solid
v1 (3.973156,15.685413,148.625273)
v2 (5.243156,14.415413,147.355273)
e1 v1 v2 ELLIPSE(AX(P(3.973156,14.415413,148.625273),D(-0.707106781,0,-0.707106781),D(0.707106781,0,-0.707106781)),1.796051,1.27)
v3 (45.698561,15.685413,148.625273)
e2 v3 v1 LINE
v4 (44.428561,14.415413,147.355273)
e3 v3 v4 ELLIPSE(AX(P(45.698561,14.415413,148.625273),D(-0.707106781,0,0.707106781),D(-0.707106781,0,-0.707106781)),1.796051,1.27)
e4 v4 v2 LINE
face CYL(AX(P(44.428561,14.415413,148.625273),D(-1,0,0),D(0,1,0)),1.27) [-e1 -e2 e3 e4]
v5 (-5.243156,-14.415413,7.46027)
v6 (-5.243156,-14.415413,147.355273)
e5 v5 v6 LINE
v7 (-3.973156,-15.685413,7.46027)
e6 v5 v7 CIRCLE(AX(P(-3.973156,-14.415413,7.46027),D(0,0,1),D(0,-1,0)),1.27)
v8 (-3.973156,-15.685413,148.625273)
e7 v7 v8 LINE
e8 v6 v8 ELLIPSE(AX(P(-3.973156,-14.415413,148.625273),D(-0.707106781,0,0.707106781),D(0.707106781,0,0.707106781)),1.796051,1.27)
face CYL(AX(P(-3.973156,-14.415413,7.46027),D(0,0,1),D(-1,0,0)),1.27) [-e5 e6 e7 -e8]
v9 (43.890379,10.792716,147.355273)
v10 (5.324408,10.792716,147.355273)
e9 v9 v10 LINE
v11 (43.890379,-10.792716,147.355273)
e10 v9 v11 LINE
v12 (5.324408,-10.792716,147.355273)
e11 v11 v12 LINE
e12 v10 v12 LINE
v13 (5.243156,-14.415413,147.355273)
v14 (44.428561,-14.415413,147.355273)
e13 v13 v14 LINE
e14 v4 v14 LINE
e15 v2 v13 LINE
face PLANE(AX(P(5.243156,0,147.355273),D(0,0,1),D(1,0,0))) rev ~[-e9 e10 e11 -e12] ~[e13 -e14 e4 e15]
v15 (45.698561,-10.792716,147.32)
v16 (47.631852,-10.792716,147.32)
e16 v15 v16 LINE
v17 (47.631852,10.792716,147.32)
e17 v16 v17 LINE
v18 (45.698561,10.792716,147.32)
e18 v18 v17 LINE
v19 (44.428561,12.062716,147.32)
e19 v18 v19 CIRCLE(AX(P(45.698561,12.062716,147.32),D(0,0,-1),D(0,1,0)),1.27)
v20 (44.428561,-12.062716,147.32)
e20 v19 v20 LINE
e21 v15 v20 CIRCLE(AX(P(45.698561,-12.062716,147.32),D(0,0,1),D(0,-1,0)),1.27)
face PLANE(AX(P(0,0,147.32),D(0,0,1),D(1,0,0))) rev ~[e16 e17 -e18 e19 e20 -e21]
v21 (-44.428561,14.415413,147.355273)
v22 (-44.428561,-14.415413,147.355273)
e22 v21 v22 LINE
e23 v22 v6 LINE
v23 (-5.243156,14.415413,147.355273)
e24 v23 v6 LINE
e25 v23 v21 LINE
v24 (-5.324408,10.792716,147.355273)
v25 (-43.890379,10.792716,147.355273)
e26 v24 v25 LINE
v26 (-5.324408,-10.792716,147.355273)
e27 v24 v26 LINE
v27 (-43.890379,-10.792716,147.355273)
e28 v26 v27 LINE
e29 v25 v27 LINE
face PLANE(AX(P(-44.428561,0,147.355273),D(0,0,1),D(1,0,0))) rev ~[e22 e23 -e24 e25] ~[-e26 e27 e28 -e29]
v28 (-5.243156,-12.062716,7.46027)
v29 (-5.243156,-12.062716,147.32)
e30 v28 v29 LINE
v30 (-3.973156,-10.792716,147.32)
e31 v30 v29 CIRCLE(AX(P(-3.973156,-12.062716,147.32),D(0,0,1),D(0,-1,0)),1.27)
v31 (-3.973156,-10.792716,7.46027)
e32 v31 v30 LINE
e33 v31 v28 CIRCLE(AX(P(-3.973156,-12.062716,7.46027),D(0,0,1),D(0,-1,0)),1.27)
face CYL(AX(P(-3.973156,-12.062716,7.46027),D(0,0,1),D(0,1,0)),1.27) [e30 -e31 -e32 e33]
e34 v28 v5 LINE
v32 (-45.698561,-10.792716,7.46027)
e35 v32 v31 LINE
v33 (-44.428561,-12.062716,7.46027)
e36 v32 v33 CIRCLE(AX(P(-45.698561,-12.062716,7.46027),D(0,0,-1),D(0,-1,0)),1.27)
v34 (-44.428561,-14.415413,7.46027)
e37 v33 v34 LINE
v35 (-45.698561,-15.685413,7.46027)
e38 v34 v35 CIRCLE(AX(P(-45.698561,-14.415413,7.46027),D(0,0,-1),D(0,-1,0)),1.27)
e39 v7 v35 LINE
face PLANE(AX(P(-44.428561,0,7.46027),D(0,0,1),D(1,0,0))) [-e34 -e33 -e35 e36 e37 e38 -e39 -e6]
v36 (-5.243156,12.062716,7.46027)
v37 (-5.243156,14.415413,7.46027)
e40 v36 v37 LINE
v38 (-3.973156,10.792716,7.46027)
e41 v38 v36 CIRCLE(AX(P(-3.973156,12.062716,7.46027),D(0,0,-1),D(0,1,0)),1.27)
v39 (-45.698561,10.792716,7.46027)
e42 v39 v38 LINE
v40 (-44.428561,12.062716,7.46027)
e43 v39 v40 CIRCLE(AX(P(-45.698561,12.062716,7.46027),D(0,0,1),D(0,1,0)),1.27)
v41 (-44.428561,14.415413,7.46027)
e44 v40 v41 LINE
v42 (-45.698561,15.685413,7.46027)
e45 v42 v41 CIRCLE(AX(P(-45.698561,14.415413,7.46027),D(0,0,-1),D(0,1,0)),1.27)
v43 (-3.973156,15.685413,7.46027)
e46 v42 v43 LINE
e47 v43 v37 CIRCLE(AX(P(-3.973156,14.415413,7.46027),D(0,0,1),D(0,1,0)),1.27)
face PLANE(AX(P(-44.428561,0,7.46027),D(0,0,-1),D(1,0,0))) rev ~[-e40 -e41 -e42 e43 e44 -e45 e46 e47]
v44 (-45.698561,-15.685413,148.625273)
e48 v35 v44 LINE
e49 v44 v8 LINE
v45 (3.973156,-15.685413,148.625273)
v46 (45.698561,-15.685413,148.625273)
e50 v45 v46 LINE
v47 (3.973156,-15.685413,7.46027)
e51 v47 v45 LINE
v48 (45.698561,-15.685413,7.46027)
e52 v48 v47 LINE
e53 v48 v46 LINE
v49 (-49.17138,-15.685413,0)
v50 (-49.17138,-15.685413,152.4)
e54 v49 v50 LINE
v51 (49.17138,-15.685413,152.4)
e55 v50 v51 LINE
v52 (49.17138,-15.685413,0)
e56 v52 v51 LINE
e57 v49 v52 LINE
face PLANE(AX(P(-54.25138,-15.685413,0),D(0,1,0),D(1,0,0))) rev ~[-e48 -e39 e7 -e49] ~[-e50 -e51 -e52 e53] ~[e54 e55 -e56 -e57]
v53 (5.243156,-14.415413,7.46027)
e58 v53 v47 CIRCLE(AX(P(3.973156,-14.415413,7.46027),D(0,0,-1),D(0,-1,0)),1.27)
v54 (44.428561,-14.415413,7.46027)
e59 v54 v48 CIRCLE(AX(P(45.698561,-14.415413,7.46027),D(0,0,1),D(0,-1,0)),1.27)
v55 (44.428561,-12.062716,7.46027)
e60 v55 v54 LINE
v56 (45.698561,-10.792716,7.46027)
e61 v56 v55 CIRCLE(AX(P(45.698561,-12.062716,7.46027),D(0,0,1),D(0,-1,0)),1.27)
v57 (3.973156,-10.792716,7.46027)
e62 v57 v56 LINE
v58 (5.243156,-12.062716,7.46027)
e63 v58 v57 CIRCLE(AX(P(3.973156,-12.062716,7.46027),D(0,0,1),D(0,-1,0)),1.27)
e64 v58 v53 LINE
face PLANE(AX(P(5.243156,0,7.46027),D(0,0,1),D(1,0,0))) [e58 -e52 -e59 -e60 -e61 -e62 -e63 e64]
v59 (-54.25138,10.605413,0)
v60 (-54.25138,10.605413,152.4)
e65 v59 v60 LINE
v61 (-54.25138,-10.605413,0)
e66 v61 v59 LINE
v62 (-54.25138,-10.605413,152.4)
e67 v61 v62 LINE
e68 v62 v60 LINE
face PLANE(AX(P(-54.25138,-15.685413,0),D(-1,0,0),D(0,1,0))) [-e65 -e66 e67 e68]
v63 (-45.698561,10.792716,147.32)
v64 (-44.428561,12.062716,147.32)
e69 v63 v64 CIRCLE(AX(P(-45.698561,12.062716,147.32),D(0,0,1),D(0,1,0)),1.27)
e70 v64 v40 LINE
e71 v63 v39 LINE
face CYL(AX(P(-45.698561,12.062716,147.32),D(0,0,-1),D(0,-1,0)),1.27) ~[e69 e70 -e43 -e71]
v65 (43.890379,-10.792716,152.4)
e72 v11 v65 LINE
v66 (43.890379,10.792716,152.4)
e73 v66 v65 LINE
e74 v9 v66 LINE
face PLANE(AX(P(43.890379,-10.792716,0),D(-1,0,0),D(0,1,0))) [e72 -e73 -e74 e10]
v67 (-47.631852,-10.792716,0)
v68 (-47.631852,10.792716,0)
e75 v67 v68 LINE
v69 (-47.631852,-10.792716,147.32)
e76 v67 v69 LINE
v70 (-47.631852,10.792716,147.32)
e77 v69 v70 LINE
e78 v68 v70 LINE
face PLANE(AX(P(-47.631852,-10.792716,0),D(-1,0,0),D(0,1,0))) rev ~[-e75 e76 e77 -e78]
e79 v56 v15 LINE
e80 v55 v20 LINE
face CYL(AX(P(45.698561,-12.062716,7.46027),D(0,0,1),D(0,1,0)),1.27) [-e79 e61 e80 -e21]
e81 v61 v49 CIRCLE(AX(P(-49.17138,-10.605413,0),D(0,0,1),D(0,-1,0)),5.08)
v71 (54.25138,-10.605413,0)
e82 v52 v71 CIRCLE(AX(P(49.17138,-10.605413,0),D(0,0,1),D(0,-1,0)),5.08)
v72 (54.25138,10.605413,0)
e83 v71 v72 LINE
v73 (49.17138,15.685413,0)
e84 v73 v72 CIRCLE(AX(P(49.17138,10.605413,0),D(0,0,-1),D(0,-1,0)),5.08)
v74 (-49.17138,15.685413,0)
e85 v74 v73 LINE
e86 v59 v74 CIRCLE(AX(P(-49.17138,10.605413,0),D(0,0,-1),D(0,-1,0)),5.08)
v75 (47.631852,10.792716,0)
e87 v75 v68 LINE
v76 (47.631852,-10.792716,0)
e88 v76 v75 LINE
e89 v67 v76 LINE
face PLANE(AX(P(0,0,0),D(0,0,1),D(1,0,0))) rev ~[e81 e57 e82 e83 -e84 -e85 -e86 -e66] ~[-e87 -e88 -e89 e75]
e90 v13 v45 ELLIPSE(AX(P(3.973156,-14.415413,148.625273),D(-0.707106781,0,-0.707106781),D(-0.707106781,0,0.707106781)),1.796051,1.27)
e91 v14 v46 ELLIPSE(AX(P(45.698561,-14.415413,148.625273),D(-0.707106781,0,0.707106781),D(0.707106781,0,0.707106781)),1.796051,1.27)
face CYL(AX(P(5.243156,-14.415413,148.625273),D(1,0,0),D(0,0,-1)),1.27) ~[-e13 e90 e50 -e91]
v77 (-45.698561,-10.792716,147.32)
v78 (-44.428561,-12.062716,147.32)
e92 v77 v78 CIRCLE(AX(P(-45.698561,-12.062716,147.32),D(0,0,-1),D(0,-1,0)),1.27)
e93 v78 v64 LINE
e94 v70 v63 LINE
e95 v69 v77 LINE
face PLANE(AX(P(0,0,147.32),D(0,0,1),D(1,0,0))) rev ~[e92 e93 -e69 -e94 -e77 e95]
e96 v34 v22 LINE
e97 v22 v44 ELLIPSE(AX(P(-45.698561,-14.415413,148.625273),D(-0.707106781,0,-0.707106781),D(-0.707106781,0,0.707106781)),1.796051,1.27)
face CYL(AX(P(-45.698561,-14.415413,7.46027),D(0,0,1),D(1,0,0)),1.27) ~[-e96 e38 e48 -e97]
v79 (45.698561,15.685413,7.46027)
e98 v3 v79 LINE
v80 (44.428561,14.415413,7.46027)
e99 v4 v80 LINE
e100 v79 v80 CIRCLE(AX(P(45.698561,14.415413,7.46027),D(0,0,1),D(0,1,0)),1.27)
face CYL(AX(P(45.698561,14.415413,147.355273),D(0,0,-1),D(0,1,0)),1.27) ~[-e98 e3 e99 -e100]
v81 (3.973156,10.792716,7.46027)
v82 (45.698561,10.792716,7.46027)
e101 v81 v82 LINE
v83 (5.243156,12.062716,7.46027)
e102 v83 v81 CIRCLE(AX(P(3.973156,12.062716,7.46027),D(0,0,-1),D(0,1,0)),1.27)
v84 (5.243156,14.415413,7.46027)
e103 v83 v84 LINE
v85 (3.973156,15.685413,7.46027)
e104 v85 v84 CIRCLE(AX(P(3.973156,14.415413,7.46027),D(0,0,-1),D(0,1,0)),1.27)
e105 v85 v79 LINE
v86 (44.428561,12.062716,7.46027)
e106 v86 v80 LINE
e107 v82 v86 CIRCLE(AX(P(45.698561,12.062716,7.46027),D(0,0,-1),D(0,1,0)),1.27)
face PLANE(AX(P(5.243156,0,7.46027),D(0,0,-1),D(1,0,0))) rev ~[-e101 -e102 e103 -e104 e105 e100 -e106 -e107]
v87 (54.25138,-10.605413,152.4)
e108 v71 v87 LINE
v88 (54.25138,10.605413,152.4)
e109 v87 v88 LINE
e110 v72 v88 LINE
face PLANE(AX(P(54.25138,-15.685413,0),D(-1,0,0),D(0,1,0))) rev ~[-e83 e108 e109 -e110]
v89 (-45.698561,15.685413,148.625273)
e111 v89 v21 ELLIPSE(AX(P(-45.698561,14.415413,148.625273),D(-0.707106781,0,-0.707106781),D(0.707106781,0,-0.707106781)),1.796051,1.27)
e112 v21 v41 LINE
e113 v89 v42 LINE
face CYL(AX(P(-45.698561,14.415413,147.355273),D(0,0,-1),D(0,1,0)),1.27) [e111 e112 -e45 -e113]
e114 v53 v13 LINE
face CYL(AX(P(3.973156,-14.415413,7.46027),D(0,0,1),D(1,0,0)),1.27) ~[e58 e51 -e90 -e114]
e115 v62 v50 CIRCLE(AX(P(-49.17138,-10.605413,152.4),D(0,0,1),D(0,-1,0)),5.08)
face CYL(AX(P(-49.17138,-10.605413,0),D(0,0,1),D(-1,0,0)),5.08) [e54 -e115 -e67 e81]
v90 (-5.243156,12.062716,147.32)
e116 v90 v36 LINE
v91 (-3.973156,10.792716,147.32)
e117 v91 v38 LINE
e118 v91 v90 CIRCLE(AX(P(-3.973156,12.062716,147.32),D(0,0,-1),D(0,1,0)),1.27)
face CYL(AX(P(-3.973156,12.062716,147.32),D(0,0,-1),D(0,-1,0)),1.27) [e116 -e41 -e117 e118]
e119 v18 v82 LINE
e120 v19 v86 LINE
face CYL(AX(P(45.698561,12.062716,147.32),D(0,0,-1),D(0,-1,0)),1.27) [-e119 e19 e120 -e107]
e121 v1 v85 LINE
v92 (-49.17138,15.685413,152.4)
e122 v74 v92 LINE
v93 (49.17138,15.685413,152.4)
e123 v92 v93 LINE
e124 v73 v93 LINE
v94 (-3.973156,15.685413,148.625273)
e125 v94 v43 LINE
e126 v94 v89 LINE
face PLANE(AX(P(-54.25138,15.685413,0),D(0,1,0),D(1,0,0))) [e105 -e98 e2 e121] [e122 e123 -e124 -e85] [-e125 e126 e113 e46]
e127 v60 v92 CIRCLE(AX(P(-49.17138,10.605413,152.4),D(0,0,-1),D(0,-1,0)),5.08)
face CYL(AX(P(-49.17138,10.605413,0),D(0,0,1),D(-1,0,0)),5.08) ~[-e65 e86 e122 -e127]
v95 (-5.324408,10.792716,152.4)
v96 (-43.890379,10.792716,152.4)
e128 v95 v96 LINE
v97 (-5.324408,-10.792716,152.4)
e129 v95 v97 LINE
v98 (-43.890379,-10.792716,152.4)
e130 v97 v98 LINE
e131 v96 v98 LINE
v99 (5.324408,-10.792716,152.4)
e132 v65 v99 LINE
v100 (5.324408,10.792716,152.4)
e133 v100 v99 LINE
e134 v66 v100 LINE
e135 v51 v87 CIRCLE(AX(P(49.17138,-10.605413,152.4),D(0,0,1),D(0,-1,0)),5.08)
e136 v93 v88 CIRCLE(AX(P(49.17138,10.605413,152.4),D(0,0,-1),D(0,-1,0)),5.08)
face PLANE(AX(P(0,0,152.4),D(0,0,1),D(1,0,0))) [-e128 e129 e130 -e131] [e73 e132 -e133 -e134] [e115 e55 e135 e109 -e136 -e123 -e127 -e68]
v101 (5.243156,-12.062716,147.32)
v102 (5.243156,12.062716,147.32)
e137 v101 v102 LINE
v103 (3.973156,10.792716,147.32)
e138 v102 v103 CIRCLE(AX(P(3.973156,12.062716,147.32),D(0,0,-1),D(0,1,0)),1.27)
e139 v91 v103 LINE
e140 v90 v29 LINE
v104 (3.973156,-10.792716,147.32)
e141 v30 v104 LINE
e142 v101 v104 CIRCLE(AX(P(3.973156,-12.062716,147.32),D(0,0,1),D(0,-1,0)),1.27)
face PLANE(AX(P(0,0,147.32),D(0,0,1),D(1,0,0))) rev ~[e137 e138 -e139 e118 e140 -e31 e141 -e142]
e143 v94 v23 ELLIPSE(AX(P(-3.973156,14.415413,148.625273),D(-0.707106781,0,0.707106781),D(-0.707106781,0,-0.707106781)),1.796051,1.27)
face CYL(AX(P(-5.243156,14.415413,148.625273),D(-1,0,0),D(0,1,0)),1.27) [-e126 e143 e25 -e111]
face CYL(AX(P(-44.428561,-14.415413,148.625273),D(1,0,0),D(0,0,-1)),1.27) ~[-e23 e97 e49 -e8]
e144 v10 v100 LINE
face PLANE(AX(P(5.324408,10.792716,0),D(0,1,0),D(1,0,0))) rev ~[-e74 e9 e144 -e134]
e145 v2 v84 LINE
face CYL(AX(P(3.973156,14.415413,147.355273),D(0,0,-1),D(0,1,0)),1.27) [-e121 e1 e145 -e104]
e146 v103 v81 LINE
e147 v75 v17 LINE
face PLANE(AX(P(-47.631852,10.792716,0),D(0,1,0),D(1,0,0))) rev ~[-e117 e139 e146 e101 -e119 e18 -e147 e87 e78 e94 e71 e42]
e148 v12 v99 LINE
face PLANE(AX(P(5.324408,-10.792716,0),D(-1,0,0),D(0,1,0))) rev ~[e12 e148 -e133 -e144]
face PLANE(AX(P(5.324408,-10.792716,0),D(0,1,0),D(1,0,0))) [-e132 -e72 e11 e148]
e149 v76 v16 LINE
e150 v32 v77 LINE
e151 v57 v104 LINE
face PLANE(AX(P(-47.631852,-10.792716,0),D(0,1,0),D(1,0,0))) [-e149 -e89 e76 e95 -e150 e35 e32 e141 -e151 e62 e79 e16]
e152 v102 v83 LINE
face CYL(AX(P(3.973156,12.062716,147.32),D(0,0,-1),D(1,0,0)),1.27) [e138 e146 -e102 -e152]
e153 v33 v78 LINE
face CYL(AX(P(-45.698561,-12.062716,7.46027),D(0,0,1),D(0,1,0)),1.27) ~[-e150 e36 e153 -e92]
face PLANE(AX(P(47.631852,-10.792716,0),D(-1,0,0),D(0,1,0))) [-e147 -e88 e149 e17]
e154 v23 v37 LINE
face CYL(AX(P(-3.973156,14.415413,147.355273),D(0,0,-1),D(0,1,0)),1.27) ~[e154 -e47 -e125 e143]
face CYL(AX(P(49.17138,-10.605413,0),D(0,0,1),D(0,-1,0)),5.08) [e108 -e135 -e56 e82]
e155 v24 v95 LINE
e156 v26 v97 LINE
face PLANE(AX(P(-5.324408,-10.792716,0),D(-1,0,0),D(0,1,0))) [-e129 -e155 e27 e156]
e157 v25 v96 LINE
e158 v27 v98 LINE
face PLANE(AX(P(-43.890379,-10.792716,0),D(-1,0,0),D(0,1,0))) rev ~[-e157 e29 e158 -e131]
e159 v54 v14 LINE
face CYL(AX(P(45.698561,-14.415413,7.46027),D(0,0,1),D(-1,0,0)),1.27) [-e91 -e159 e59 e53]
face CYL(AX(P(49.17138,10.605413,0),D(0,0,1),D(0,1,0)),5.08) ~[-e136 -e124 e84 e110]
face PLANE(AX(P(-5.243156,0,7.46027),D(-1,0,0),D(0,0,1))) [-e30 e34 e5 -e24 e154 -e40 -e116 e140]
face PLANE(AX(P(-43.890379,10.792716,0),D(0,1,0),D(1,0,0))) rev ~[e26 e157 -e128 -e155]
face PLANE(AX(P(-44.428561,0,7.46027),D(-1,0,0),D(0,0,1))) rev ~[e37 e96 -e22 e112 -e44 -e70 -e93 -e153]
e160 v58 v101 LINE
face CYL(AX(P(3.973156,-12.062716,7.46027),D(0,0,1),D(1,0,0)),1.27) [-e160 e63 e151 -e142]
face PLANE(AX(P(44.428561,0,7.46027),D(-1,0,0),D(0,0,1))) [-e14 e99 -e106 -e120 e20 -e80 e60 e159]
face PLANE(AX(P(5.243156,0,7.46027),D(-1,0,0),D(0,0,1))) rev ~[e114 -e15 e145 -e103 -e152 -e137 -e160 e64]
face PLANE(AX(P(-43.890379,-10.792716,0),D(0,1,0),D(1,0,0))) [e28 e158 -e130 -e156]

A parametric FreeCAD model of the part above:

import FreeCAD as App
import Part
import Sketcher

V = App.Vector
Q = App.Units.Quantity


def edges_at(feature, points):
    """Names of the edges that pass closest to the given points."""
    edges = feature.Shape.Edges
    near = lambda p: min(range(len(edges)), key=lambda i: edges[i].distToShape(Part.Vertex(*p))[0])
    return sorted({f"Edge{near(p) + 1}" for p in points})

doc = App.newDocument("Part")
body = doc.addObject("PartDesign::Body", "Body")

# Sketch on XY plane
sketch1 = doc.addObject("Sketcher::SketchObject", "Sketch")
body.addObject(sketch1)
sketch1.AttachmentSupport = (doc.XY_Plane, [""])
sketch1.MapMode = "FlatFace"
sketch1.addGeometry([
    Part.LineSegment(V(-54, 16, 0), V(-54, -16, 0)),
    Part.LineSegment(V(-54, -16, 0), V(54, -16, 0)),
    Part.LineSegment(V(54, -16, 0), V(54, 16, 0)),
    Part.LineSegment(V(54, 16, 0), V(-54, 16, 0)),
], False)
sketch1.addConstraint([
    Sketcher.Constraint("Coincident", 0, 2, 1, 1),
    Sketcher.Constraint("Coincident", 1, 2, 2, 1),
    Sketcher.Constraint("Coincident", 2, 2, 3, 1),
    Sketcher.Constraint("Coincident", 3, 2, 0, 1),
    Sketcher.Constraint("Vertical", 0),
    Sketcher.Constraint("Horizontal", 1),
    Sketcher.Constraint("Vertical", 2),
    Sketcher.Constraint("Horizontal", 3),
    Sketcher.Constraint("Symmetric", 0, 2, 2, 2, -1, 1),
    Sketcher.Constraint("DistanceX", 1, 1, 1, 2, 108.502761),
    Sketcher.Constraint("DistanceY", 0, 2, 0, 1, 31.370826),
])
pad1 = doc.addObject("PartDesign::Pad", "Pad")
body.addObject(pad1)
pad1.Profile = sketch1
pad1.Length = Q("6 in")

# Sketch on XY plane
sketch2 = doc.addObject("Sketcher::SketchObject", "Sketch001")
body.addObject(sketch2)
sketch2.AttachmentSupport = (doc.XY_Plane, [""])
sketch2.MapMode = "FlatFace"
sketch2.addGeometry([
    Part.LineSegment(V(-48, 11, 0), V(-48, -11, 0)),
    Part.LineSegment(V(-48, -11, 0), V(48, -11, 0)),
    Part.LineSegment(V(48, -11, 0), V(48, 11, 0)),
    Part.LineSegment(V(48, 11, 0), V(-48, 11, 0)),
], False)
sketch2.addConstraint([
    Sketcher.Constraint("Coincident", 0, 2, 1, 1),
    Sketcher.Constraint("Coincident", 1, 2, 2, 1),
    Sketcher.Constraint("Coincident", 2, 2, 3, 1),
    Sketcher.Constraint("Coincident", 3, 2, 0, 1),
    Sketcher.Constraint("Vertical", 0),
    Sketcher.Constraint("Horizontal", 1),
    Sketcher.Constraint("Vertical", 2),
    Sketcher.Constraint("Horizontal", 3),
    Sketcher.Constraint("Symmetric", 0, 2, 2, 2, -1, 1),
    Sketcher.Constraint("DistanceX", 1, 1, 1, 2, 95.263705),
    Sketcher.Constraint("DistanceY", 0, 2, 0, 1, 21.585433),
])
pocket1 = doc.addObject("PartDesign::Pocket", "Pocket")
body.addObject(pocket1)
pocket1.Profile = sketch2
pocket1.Length = Q("5.8 in")
pocket1.Reversed = True
doc.recompute()

fillet = doc.addObject("PartDesign::Fillet", "Fillet")
body.addObject(fillet)
fillet.Base = (pocket1, edges_at(pocket1, [
    (-54.251, 15.685, 76.2),
    (-54.251, -15.685, 76.2),
    (54.251, -15.685, 76.2),
    (54.251, 15.685, 76.2),
]))
fillet.Radius = Q("0.2 in")

# Sketch on XZ plane
sketch3 = doc.addObject("Sketcher::SketchObject", "Sketch002")
body.addObject(sketch3)
sketch3.AttachmentSupport = (doc.XZ_Plane, [""])
sketch3.MapMode = "FlatFace"
sketch3.addGeometry([
    Part.LineSegment(V(5, 147, 0), V(5, 7, 0)),  # 0
    Part.LineSegment(V(5, 7, 0), V(44, 7, 0)),  # 1
    Part.LineSegment(V(44, 7, 0), V(44, 147, 0)),  # 2
    Part.LineSegment(V(44, 147, 0), V(5, 147, 0)),  # 3
    Part.LineSegment(V(-44, 147, 0), V(-44, 7, 0)),  # 4
    Part.LineSegment(V(-44, 7, 0), V(-5, 7, 0)),  # 5
    Part.LineSegment(V(-5, 7, 0), V(-5, 147, 0)),  # 6
    Part.LineSegment(V(-5, 147, 0), V(-44, 147, 0)),  # 7
], False)
sketch3.addConstraint([
    Sketcher.Constraint("Coincident", 0, 2, 1, 1),
    Sketcher.Constraint("Coincident", 1, 2, 2, 1),
    Sketcher.Constraint("Coincident", 2, 2, 3, 1),
    Sketcher.Constraint("Coincident", 3, 2, 0, 1),
    Sketcher.Constraint("Coincident", 4, 2, 5, 1),
    Sketcher.Constraint("Coincident", 5, 2, 6, 1),
    Sketcher.Constraint("Coincident", 6, 2, 7, 1),
    Sketcher.Constraint("Coincident", 7, 2, 4, 1),
    Sketcher.Constraint("Vertical", 0),
    Sketcher.Constraint("Horizontal", 1),
    Sketcher.Constraint("Vertical", 2),
    Sketcher.Constraint("Horizontal", 3),
    Sketcher.Constraint("Vertical", 4),
    Sketcher.Constraint("Horizontal", 5),
    Sketcher.Constraint("Vertical", 6),
    Sketcher.Constraint("Horizontal", 7),
    Sketcher.Constraint("Symmetric", 1, 2, 4, 2, -2),
    Sketcher.Constraint("Symmetric", 3, 2, 6, 2, -2),
    Sketcher.Constraint("DistanceX", 1, 1, 1, 2, 39.185405),
    Sketcher.Constraint("DistanceY", 0, 2, 0, 1, 139.895003),
    Sketcher.Constraint("DistanceY", -1, 1, 0, 2, 7.46027),
    Sketcher.Constraint("DistanceX", -1, 1, 1, 2, 44.428561),
])
pocket2 = doc.addObject("PartDesign::Pocket", "Pocket001")
body.addObject(pocket2)
pocket2.Profile = sketch3
pocket2.Type = "ThroughAll"
pocket2.Midplane = True
doc.recompute()

fillet2 = doc.addObject("PartDesign::Fillet", "Fillet001")
body.addObject(fillet2)
fillet2.Base = (pocket2, edges_at(pocket2, [
    (5.243, -15.685, 77.408),
    (5.243, -10.793, 77.39),
    (-5.243, -15.685, 77.408),
    (-5.243, -10.793, 77.39),
    (-5.243, 10.793, 77.39),
    (-5.243, 15.685, 77.408),
    (5.243, 10.793, 77.39),
    (5.243, 15.685, 77.408),
    (44.429, -15.685, 77.408),
    (44.429, -10.793, 77.39),
    (44.429, 10.793, 77.39),
    (44.429, 15.685, 77.408),
    (-44.429, 10.793, 77.39),
    (-44.429, 15.685, 77.408),
    (-44.429, -10.793, 77.39),
    (-44.429, -15.685, 77.408),
    (-24.836, 15.685, 147.355),
    (-24.836, -15.685, 147.355),
    (24.836, -15.685, 147.355),
    (24.836, 15.685, 147.355),
]))
fillet2.Radius = Q("0.05 in")

# Sketch on XY plane
sketch4 = doc.addObject("Sketcher::SketchObject", "Sketch003")
body.addObject(sketch4)
sketch4.AttachmentSupport = (doc.XY_Plane, [""])
sketch4.MapMode = "FlatFace"
sketch4.addGeometry([
    Part.LineSegment(V(-44, 11, 0), V(-44, -11, 0)),  # 0
    Part.LineSegment(V(-44, -11, 0), V(-5, -11, 0)),  # 1
    Part.LineSegment(V(-5, -11, 0), V(-5, 11, 0)),  # 2
    Part.LineSegment(V(-5, 11, 0), V(-44, 11, 0)),  # 3
    Part.LineSegment(V(5, 11, 0), V(5, -11, 0)),  # 4
    Part.LineSegment(V(5, -11, 0), V(44, -11, 0)),  # 5
    Part.LineSegment(V(44, -11, 0), V(44, 11, 0)),  # 6
    Part.LineSegment(V(44, 11, 0), V(5, 11, 0)),  # 7
], False)
sketch4.addConstraint([
    Sketcher.Constraint("Coincident", 0, 2, 1, 1),
    Sketcher.Constraint("Coincident", 1, 2, 2, 1),
    Sketcher.Constraint("Coincident", 2, 2, 3, 1),
    Sketcher.Constraint("Coincident", 3, 2, 0, 1),
    Sketcher.Constraint("Coincident", 4, 2, 5, 1),
    Sketcher.Constraint("Coincident", 5, 2, 6, 1),
    Sketcher.Constraint("Coincident", 6, 2, 7, 1),
    Sketcher.Constraint("Coincident", 7, 2, 4, 1),
    Sketcher.Constraint("Vertical", 0),
    Sketcher.Constraint("Horizontal", 1),
    Sketcher.Constraint("Vertical", 2),
    Sketcher.Constraint("Horizontal", 3),
    Sketcher.Constraint("Vertical", 4),
    Sketcher.Constraint("Horizontal", 5),
    Sketcher.Constraint("Vertical", 6),
    Sketcher.Constraint("Horizontal", 7),
    Sketcher.Constraint("Symmetric", 2, 2, 4, 2, -1, 1),
    Sketcher.Constraint("Symmetric", 0, 2, 6, 2, -1, 1),
    Sketcher.Constraint("Horizontal", 1, 2, 4, 2),
    Sketcher.Constraint("DistanceX", 1, 1, 1, 2, 38.565971),
    Sketcher.Constraint("DistanceY", 0, 2, 0, 1, 21.585433),
    Sketcher.Constraint("DistanceX", 0, 2, -1, 1, 43.890379),
])
pocket3 = doc.addObject("PartDesign::Pocket", "Pocket002")
body.addObject(pocket3)
pocket3.Profile = sketch4
pocket3.Type = "ThroughAll"
pocket3.Reversed = True

doc.recompute()
